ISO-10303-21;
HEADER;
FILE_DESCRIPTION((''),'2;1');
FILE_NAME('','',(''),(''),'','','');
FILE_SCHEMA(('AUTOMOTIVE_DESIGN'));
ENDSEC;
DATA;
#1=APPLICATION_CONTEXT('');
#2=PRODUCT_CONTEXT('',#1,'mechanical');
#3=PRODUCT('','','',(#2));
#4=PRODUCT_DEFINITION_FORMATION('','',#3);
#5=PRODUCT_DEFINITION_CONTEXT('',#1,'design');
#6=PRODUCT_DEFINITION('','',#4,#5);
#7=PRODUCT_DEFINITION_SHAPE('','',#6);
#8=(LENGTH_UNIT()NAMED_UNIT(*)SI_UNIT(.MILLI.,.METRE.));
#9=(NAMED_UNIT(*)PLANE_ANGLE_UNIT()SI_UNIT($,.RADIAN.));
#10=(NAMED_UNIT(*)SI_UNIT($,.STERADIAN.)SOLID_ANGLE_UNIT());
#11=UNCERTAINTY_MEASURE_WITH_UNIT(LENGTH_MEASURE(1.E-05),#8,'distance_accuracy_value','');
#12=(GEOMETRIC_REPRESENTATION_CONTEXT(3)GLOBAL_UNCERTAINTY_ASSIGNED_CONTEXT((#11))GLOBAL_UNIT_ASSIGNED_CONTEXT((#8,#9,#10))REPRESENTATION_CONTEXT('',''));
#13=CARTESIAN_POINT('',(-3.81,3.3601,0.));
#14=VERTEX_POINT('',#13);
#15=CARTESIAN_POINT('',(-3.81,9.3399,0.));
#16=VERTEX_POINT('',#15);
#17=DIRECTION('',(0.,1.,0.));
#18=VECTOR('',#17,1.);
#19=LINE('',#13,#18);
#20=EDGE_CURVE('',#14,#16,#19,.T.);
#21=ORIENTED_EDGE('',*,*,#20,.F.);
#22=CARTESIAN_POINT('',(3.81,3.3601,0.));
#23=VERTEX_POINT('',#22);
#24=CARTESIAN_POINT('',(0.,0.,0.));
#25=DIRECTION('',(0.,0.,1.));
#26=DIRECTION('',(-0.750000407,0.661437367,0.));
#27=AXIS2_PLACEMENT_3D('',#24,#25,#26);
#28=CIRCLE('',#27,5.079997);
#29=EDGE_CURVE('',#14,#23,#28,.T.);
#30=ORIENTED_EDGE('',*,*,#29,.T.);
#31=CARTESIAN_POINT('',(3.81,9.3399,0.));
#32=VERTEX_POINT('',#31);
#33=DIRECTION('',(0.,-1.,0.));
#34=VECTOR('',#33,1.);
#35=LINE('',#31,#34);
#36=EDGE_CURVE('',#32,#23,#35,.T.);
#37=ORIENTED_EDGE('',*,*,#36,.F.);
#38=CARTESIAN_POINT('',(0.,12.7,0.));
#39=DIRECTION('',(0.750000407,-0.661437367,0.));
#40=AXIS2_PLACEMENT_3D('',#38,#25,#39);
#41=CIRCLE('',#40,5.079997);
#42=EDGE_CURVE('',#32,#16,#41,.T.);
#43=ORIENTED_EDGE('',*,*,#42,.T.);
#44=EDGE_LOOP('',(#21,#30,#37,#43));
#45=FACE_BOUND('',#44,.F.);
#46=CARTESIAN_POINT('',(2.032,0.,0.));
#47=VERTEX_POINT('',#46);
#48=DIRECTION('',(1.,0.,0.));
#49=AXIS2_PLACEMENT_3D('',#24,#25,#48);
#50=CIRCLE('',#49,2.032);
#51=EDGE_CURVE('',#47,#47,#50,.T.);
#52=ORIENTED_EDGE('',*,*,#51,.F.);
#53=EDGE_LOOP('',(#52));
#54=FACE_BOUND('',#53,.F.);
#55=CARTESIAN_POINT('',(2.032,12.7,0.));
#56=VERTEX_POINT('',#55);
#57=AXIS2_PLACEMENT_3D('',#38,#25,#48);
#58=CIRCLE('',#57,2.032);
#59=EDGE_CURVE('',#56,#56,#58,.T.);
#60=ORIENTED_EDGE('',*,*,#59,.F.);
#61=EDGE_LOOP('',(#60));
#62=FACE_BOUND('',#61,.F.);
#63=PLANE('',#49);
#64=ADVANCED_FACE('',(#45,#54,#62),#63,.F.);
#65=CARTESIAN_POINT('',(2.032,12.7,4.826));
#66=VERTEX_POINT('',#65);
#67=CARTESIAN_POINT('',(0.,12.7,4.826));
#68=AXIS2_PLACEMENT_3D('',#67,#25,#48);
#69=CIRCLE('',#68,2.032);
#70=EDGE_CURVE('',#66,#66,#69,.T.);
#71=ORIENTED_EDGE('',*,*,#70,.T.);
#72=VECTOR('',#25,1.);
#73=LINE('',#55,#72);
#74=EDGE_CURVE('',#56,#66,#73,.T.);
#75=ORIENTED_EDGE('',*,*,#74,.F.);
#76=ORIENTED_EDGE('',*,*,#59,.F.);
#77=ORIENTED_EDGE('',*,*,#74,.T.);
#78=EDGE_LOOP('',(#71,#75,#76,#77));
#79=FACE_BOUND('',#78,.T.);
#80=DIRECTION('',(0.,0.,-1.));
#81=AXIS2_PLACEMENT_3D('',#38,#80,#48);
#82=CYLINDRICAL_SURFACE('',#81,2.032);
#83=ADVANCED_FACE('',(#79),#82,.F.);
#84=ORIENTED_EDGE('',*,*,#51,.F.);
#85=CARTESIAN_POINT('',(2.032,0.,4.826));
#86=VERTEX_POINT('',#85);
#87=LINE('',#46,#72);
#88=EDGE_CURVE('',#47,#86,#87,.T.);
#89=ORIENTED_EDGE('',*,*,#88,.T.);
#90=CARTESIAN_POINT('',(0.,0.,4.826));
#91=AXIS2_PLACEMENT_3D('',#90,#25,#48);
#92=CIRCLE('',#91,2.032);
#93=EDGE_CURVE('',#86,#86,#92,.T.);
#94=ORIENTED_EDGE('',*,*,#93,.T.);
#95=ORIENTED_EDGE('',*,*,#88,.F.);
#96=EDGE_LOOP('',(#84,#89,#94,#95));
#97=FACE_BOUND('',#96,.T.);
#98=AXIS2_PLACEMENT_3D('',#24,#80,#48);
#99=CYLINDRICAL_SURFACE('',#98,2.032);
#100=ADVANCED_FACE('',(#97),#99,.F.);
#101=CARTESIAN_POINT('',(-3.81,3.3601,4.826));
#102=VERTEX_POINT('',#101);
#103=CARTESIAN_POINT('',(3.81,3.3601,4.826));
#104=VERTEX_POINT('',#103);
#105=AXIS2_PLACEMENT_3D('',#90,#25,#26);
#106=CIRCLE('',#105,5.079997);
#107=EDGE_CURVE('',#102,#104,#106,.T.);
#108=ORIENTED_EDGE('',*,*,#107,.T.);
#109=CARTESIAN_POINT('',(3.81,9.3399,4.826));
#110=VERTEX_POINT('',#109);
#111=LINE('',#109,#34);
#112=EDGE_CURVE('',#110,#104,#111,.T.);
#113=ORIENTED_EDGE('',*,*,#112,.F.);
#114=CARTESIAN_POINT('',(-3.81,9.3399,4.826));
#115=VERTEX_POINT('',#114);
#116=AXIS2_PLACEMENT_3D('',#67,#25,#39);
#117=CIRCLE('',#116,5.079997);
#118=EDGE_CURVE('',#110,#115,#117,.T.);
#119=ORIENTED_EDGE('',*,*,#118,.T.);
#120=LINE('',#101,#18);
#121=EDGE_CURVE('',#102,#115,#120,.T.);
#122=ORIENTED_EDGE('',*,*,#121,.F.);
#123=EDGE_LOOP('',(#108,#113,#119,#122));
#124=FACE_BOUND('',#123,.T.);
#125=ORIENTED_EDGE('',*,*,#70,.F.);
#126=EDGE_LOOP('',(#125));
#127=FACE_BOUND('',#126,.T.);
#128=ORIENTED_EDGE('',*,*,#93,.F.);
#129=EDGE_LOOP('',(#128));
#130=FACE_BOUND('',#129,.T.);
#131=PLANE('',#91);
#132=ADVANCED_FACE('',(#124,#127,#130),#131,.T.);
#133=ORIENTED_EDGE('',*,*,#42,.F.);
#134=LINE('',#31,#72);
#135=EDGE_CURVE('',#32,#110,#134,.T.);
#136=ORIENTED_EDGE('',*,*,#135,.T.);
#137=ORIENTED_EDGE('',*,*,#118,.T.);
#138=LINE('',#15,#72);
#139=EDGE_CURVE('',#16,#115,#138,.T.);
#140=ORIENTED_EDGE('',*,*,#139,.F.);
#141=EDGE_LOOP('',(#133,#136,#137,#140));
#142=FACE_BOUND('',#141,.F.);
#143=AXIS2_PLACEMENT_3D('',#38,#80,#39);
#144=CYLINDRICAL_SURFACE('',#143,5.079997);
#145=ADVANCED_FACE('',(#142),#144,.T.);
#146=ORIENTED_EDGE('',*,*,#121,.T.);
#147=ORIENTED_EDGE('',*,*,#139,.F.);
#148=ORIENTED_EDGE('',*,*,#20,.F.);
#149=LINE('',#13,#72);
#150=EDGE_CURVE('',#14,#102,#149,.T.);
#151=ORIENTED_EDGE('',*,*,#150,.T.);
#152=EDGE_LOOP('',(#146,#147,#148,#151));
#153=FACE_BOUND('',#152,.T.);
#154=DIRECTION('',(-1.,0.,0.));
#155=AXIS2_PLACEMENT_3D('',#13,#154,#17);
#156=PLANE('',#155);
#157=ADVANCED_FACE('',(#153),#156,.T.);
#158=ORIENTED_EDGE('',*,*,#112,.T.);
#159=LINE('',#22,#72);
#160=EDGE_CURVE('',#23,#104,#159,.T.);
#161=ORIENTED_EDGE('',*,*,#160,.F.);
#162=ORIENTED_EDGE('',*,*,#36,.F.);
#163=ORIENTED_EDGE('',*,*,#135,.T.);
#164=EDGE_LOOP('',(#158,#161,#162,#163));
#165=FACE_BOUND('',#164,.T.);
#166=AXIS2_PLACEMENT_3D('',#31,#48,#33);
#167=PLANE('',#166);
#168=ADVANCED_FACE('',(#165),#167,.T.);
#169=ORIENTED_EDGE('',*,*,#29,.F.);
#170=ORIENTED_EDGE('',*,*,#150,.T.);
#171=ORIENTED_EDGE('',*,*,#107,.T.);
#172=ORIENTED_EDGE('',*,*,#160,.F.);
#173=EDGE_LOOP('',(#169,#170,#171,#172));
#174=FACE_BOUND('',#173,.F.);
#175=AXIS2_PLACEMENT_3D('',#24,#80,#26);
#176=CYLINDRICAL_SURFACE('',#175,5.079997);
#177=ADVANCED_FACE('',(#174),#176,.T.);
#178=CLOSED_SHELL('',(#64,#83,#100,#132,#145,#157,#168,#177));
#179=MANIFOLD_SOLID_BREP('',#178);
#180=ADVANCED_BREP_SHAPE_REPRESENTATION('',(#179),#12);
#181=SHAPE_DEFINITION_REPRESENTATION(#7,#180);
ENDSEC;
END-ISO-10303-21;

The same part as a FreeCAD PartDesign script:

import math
import FreeCAD as App
import Part
import Sketcher
Q = App.Units.Quantity

doc = App.newDocument("Part")
body = doc.addObject("PartDesign::Body", "Body")

# Sketch on XY plane
sketch1 = doc.addObject("Sketcher::SketchObject", "Sketch")
body.addObject(sketch1)
sketch1.AttachmentSupport = (doc.XY_Plane, [""])
sketch1.MapMode = "FlatFace"
sketch1.addGeometry(Part.LineSegment(App.Vector(-3.8, 9.3, 0), App.Vector(-3.8, 3.4, 0)), False)
sketch1.addGeometry(Part.ArcOfCircle(Part.Circle(App.Vector(0, 0, 0), App.Vector(0, 0, 1), 5.1), math.radians(139), math.radians(401)), False)
sketch1.addGeometry(Part.LineSegment(App.Vector(3.8, 3.4, 0), App.Vector(3.8, 9.3, 0)), False)
sketch1.addGeometry(Part.ArcOfCircle(Part.Circle(App.Vector(0, 12.7, 0), App.Vector(0, 0, 1), 5.1), math.radians(-41), math.radians(221)), False)
sketch1.addGeometry(Part.Circle(App.Vector(0, 0, 0), App.Vector(0, 0, 1), 2), False)
sketch1.addGeometry(Part.Circle(App.Vector(0, 12.7, 0), App.Vector(0, 0, 1), 2), False)
sketch1.addConstraint(Sketcher.Constraint("Coincident", 0, 2, 1, 1))
sketch1.addConstraint(Sketcher.Constraint("Coincident", 1, 2, 2, 1))
sketch1.addConstraint(Sketcher.Constraint("Coincident", 2, 2, 3, 1))
sketch1.addConstraint(Sketcher.Constraint("Coincident", 3, 2, 0, 1))
sketch1.addConstraint(Sketcher.Constraint("Vertical", 0))
sketch1.addConstraint(Sketcher.Constraint("Vertical", 2))
sketch1.addConstraint(Sketcher.Constraint("Coincident", 1, 3, -1, 1))
sketch1.addConstraint(Sketcher.Constraint("Coincident", 4, 3, -1, 1))
sketch1.addConstraint(Sketcher.Constraint("Coincident", 5, 3, 3, 3))
sketch1.addConstraint(Sketcher.Constraint("Equal", 1, 3))
sketch1.addConstraint(Sketcher.Constraint("Equal", 4, 5))
sketch1.addConstraint(Sketcher.Constraint("Symmetric", 2, 2, 3, 2, -2))
sketch1.addConstraint(Sketcher.Constraint("Radius", 1, Q("0.2 in")))
sketch1.addConstraint(Sketcher.Constraint("Diameter", 4, Q("0.16 in")))
sketch1.addConstraint(Sketcher.Constraint("DistanceY", -1, 1, 3, 3, Q("0.5 in")))
sketch1.addConstraint(Sketcher.Constraint("DistanceX", 0, 2, 1, 2, Q("0.3 in")))
pad1 = doc.addObject("PartDesign::Pad", "Pad")
body.addObject(pad1)
pad1.Profile = sketch1
pad1.Length = Q("0.19 in")

doc.recompute()
